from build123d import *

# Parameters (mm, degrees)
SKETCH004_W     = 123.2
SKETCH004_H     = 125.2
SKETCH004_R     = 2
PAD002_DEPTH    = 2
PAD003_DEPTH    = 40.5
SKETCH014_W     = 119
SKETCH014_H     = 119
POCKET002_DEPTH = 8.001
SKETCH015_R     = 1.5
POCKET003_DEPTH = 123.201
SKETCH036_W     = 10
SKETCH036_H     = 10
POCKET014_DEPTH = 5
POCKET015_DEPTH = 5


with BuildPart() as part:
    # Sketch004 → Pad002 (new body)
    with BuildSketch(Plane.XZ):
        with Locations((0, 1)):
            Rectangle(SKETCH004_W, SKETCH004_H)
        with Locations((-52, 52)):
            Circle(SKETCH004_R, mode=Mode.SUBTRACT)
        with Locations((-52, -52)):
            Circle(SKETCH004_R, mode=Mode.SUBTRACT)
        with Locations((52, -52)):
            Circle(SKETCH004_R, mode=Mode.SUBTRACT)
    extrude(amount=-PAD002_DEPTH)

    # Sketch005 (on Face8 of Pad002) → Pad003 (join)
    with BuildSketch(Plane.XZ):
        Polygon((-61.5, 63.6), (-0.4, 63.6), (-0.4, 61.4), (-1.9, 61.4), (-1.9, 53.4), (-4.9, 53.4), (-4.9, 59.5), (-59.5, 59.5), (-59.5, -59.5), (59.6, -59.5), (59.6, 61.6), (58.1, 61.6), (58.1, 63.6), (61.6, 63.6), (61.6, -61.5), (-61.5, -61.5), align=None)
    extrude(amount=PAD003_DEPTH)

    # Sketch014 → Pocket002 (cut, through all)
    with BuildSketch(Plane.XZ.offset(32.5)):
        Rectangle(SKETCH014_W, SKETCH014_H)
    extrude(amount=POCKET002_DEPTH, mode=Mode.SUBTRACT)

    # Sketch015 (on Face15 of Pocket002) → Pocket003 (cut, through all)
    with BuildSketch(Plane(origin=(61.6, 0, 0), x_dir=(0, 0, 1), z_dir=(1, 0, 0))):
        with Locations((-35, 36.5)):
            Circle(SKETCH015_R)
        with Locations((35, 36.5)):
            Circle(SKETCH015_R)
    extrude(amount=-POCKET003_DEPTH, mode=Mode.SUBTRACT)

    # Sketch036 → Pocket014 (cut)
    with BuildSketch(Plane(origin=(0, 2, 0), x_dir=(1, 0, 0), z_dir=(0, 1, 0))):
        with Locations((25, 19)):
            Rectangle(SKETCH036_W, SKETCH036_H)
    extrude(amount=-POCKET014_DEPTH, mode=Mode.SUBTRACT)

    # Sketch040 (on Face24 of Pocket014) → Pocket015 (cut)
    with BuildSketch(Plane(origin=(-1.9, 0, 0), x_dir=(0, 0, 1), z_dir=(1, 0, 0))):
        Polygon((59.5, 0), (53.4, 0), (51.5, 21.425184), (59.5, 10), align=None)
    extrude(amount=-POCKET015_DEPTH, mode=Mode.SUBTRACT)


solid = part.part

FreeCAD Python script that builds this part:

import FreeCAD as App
import Part
import Sketcher
from FreeCAD import Vector
Q = App.Units.Quantity

doc = App.newDocument("Part")
body = doc.addObject("PartDesign::Body", "Body")

sketch1 = body.newObject("Sketcher::SketchObject", "Sketch")
sketch1.AttachmentSupport = (doc.getObject("XZ_Plane"), [""])
sketch1.MapMode = "FlatFace"
sketch1.addGeometry([
    Part.LineSegment(Vector(-61.6, 63.6, 0), Vector(-61.6, -61.6, 0)),
    Part.LineSegment(Vector(-61.6, -61.6, 0), Vector(61.6, -61.6, 0)),
    Part.LineSegment(Vector(61.6, -61.6, 0), Vector(61.6, 63.6, 0)),
    Part.LineSegment(Vector(61.6, 63.6, 0), Vector(-61.6, 63.6, 0)),
    Part.Circle(Vector(-52, -52, 0), Vector(0, 0, 1), 2),
    Part.Circle(Vector(52, -52, 0), Vector(0, 0, 1), 2),
    Part.Circle(Vector(-52, 52, 0), Vector(0, 0, 1), 2),
], False)
sketch1.addConstraint([
    Sketcher.Constraint("Coincident", 0, 2, 1, 1),
    Sketcher.Constraint("Coincident", 1, 2, 2, 1),
    Sketcher.Constraint("Coincident", 2, 2, 3, 1),
    Sketcher.Constraint("Coincident", 3, 2, 0, 1),
    Sketcher.Constraint("Vertical", 0),
    Sketcher.Constraint("Horizontal", 1),
    Sketcher.Constraint("Vertical", 2),
    Sketcher.Constraint("Horizontal", 3),
    Sketcher.Constraint("Equal", 4, 5),
    Sketcher.Constraint("Equal", 5, 6),
    Sketcher.Constraint("Symmetric", 5, 3, 6, 3, -1, 1),
    Sketcher.Constraint("Symmetric", 4, 3, 5, 3, -2),
    Sketcher.Constraint("Diameter", 4, 4.0),
    Sketcher.Constraint("DistanceX", 1, 1, 1, 2, 123.2),
    Sketcher.Constraint("DistanceY", 0, 2, 0, 1, 125.2),
    Sketcher.Constraint("DistanceX", 4, 3, -1, 1, 52.0),
    Sketcher.Constraint("DistanceY", 4, 3, -1, 1, 52.0),
    Sketcher.Constraint("DistanceX", 0, 2, -1, 1, 61.6),
    Sketcher.Constraint("DistanceY", 0, 2, -1, 1, 61.6),
])
pad1 = body.newObject("PartDesign::Pad", "Pad")
pad1.Profile = sketch1
pad1.Length = 2
pad1.Reversed = True

sketch2 = body.newObject("Sketcher::SketchObject", "Sketch001")
sketch2.AttachmentSupport = (doc.getObject("XZ_Plane"), [""])
sketch2.MapMode = "FlatFace"
sketch2.addGeometry([
    Part.LineSegment(Vector(-0.4, 63.6, 0), Vector(-61.5, 63.6, 0)),
    Part.LineSegment(Vector(-61.5, 63.6, 0), Vector(-61.5, -61.5, 0)),
    Part.LineSegment(Vector(-61.5, -61.5, 0), Vector(61.6, -61.5, 0)),
    Part.LineSegment(Vector(61.6, -61.5, 0), Vector(61.6, 63.6, 0)),
    Part.LineSegment(Vector(61.6, 63.6, 0), Vector(58.1, 63.6, 0)),
    Part.LineSegment(Vector(58.1, 63.6, 0), Vector(58.1, 61.6, 0)),
    Part.LineSegment(Vector(58.1, 61.6, 0), Vector(59.6, 61.6, 0)),
    Part.LineSegment(Vector(59.6, 61.6, 0), Vector(59.6, -59.5, 0)),
    Part.LineSegment(Vector(59.6, -59.5, 0), Vector(-59.5, -59.5, 0)),
    Part.LineSegment(Vector(-59.5, -59.5, 0), Vector(-59.5, 59.5, 0)),
    Part.LineSegment(Vector(-59.5, 59.5, 0), Vector(-4.9, 59.5, 0)),
    Part.LineSegment(Vector(-4.9, 59.5, 0), Vector(-4.9, 53.4, 0)),
    Part.LineSegment(Vector(-4.9, 53.4, 0), Vector(-1.9, 53.4, 0)),
    Part.LineSegment(Vector(-1.9, 53.4, 0), Vector(-1.9, 61.4, 0)),
    Part.LineSegment(Vector(-1.9, 61.4, 0), Vector(-0.4, 61.4, 0)),
    Part.LineSegment(Vector(-0.4, 61.4, 0), Vector(-0.4, 63.6, 0)),
], False)
sketch2.addConstraint([
    Sketcher.Constraint("Coincident", 0, 2, 1, 1),
    Sketcher.Constraint("Coincident", 1, 2, 2, 1),
    Sketcher.Constraint("Coincident", 2, 2, 3, 1),
    Sketcher.Constraint("Coincident", 3, 2, 4, 1),
    Sketcher.Constraint("Coincident", 4, 2, 5, 1),
    Sketcher.Constraint("Coincident", 5, 2, 6, 1),
    Sketcher.Constraint("Coincident", 6, 2, 7, 1),
    Sketcher.Constraint("Coincident", 7, 2, 8, 1),
    Sketcher.Constraint("Coincident", 8, 2, 9, 1),
    Sketcher.Constraint("Coincident", 9, 2, 10, 1),
    Sketcher.Constraint("Coincident", 10, 2, 11, 1),
    Sketcher.Constraint("Coincident", 11, 2, 12, 1),
    Sketcher.Constraint("Coincident", 12, 2, 13, 1),
    Sketcher.Constraint("Coincident", 13, 2, 14, 1),
    Sketcher.Constraint("Coincident", 14, 2, 15, 1),
    Sketcher.Constraint("Coincident", 15, 2, 0, 1),
    Sketcher.Constraint("Horizontal", 0),
    Sketcher.Constraint("Vertical", 1),
    Sketcher.Constraint("Horizontal", 2),
    Sketcher.Constraint("Vertical", 3),
    Sketcher.Constraint("Horizontal", 4),
    Sketcher.Constraint("Vertical", 5),
    Sketcher.Constraint("Horizontal", 6),
    Sketcher.Constraint("Vertical", 7),
    Sketcher.Constraint("Horizontal", 8),
    Sketcher.Constraint("Vertical", 9),
    Sketcher.Constraint("Horizontal", 10),
    Sketcher.Constraint("Vertical", 11),
    Sketcher.Constraint("Horizontal", 12),
    Sketcher.Constraint("Vertical", 13),
    Sketcher.Constraint("Horizontal", 14),
    Sketcher.Constraint("Vertical", 15),
    Sketcher.Constraint("Horizontal", 0, 2, 3, 2),
    Sketcher.Constraint("Equal", 6, 14),
    Sketcher.Constraint("DistanceX", 12, 1, 12, 2, 3.0),
    Sketcher.Constraint("DistanceY", 5, 2, 5, 1, 2.0),
    Sketcher.Constraint("DistanceY", 9, 1, 9, 2, 119.0),
    Sketcher.Constraint("DistanceY", 13, 1, 13, 2, 8.0),
    Sketcher.Constraint("DistanceX", 0, 2, 0, 1, 61.1),
    Sketcher.Constraint("DistanceX", 2, 1, 2, 2, 123.1),
    Sketcher.Constraint("DistanceX", 4, 2, 4, 1, 3.5),
    Sketcher.Constraint("DistanceX", 6, 1, 6, 2, 1.5),
    Sketcher.Constraint("DistanceX", 8, 2, 8, 1, 119.1),
    Sketcher.Constraint("DistanceY", 1, 2, 1, 1, 125.1),
    Sketcher.Constraint("DistanceY", 7, 2, 7, 1, 121.1),
    Sketcher.Constraint("DistanceY", 11, 2, 11, 1, 6.1),
    Sketcher.Constraint("DistanceX", 0, 2, -1, 1, 61.5),
    Sketcher.Constraint("DistanceY", -1, 1, 0, 2, 63.6),
])
pad2 = body.newObject("PartDesign::Pad", "Pad001")
pad2.Profile = sketch2
pad2.Length = 40.5

sketch3 = body.newObject("Sketcher::SketchObject", "Sketch002")
sketch3.AttachmentSupport = (doc.getObject("XZ_Plane"), [""])
sketch3.MapMode = "FlatFace"
sketch3.AttachmentOffset = App.Placement(Vector(0, 0, 32.5), App.Rotation())
sketch3.addGeometry([
    Part.LineSegment(Vector(-60, 60, 0), Vector(-60, -60, 0)),
    Part.LineSegment(Vector(-60, -60, 0), Vector(60, -60, 0)),
    Part.LineSegment(Vector(60, -60, 0), Vector(60, 60, 0)),
    Part.LineSegment(Vector(60, 60, 0), Vector(-60, 60, 0)),
], False)
sketch3.addConstraint([
    Sketcher.Constraint("Coincident", 0, 2, 1, 1),
    Sketcher.Constraint("Coincident", 1, 2, 2, 1),
    Sketcher.Constraint("Coincident", 2, 2, 3, 1),
    Sketcher.Constraint("Coincident", 3, 2, 0, 1),
    Sketcher.Constraint("Vertical", 0),
    Sketcher.Constraint("Horizontal", 1),
    Sketcher.Constraint("Vertical", 2),
    Sketcher.Constraint("Horizontal", 3),
    Sketcher.Constraint("Symmetric", 0, 2, 2, 2, -1, 1),
    Sketcher.Constraint("Equal", 3, 0),
    Sketcher.Constraint("DistanceX", 1, 1, 1, 2, 119.0),
])
pocket1 = body.newObject("PartDesign::Pocket", "Pocket")
pocket1.Profile = sketch3
pocket1.Type = "ThroughAll"
pocket1.Reversed = True

sketch4 = body.newObject("Sketcher::SketchObject", "Sketch003")
sketch4.AttachmentSupport = (doc.getObject("YZ_Plane"), [""])
sketch4.MapMode = "FlatFace"
sketch4.AttachmentOffset = App.Placement(Vector(0, 0, 61.6), App.Rotation())
sketch4.addGeometry([
    Part.Circle(Vector(-36.5, -35, 0), Vector(0, 0, 1), 1.5),
    Part.Circle(Vector(-36.5, 35, 0), Vector(0, 0, 1), 1.5),
], False)
sketch4.addConstraint([
    Sketcher.Constraint("Equal", 0, 1),
    Sketcher.Constraint("Symmetric", 0, 3, 1, 3, -1),
    Sketcher.Constraint("Diameter", 0, 3.0),
    Sketcher.Constraint("DistanceY", 0, 3, -1, 1, 35.0),
    Sketcher.Constraint("DistanceX", 0, 3, -1, 1, 36.5),
])
pocket2 = body.newObject("PartDesign::Pocket", "Pocket001")
pocket2.Profile = sketch4
pocket2.Type = "ThroughAll"

sketch5 = body.newObject("Sketcher::SketchObject", "Sketch004")
sketch5.AttachmentSupport = (doc.getObject("XZ_Plane"), [""])
sketch5.MapMode = "FlatFace"
sketch5.AttachmentOffset = App.Placement(Vector(0, 0, -2), App.Rotation())
sketch5.addGeometry([
    Part.LineSegment(Vector(20, -24, 0), Vector(20, -14, 0)),
    Part.LineSegment(Vector(20, -14, 0), Vector(30, -14, 0)),
    Part.LineSegment(Vector(30, -14, 0), Vector(30, -24, 0)),
    Part.LineSegment(Vector(30, -24, 0), Vector(20, -24, 0)),
], False)
sketch5.addConstraint([
    Sketcher.Constraint("Coincident", 0, 2, 1, 1),
    Sketcher.Constraint("Coincident", 1, 2, 2, 1),
    Sketcher.Constraint("Coincident", 2, 2, 3, 1),
    Sketcher.Constraint("Coincident", 3, 2, 0, 1),
    Sketcher.Constraint("Vertical", 0),
    Sketcher.Constraint("Horizontal", 1),
    Sketcher.Constraint("Vertical", 2),
    Sketcher.Constraint("Horizontal", 3),
    Sketcher.Constraint("Equal", 3, 0),
    Sketcher.Constraint("DistanceX", 1, 1, 1, 2, 10.0),
    Sketcher.Constraint("DistanceX", -1, 1, 0, 2, 20.0),
    Sketcher.Constraint("DistanceY", 0, 2, -1, 1, 14.0),
])
pocket3 = body.newObject("PartDesign::Pocket", "Pocket002")
pocket3.Profile = sketch5
pocket3.Length = 5
pocket3.Reversed = True

sketch6 = body.newObject("Sketcher::SketchObject", "Sketch005")
sketch6.AttachmentSupport = (doc.getObject("YZ_Plane"), [""])
sketch6.MapMode = "FlatFace"
sketch6.AttachmentOffset = App.Placement(Vector(0, 0, -1.9), App.Rotation())
sketch6.addGeometry([
    Part.LineSegment(Vector(0, 53, 0), Vector(0, 60, 0)),
    Part.LineSegment(Vector(0, 60, 0), Vector(-10, 60, 0)),
    Part.LineSegment(Vector(-10, 60, 0), Vector(-21, 52, 0)),
    Part.LineSegment(Vector(-21, 52, 0), Vector(0, 53, 0)),
], False)
sketch6.addConstraint([
    Sketcher.Constraint("Coincident", 0, 2, 1, 1),
    Sketcher.Constraint("Coincident", 1, 2, 2, 1),
    Sketcher.Constraint("Coincident", 2, 2, 3, 1),
    Sketcher.Constraint("Coincident", 3, 2, 0, 1),
    Sketcher.Constraint("Vertical", 0),
    Sketcher.Constraint("Horizontal", 1),
    Sketcher.Constraint("PointOnObject", 0, 2, -2),
    Sketcher.Constraint("DistanceX", 1, 2, 1, 1, 10.0),
    Sketcher.Constraint("Angle", 2, Q("-145 deg")),
    Sketcher.Constraint("DistanceY", 0, 1, 0, 2, 6.1),
    Sketcher.Constraint("DistanceY", 2, 2, 1, 2, 8.0),
    Sketcher.Constraint("DistanceY", -1, 1, 0, 2, 59.5),
])
pocket4 = body.newObject("PartDesign::Pocket", "Pocket003")
pocket4.Profile = sketch6
pocket4.Length = 5

doc.recompute()
